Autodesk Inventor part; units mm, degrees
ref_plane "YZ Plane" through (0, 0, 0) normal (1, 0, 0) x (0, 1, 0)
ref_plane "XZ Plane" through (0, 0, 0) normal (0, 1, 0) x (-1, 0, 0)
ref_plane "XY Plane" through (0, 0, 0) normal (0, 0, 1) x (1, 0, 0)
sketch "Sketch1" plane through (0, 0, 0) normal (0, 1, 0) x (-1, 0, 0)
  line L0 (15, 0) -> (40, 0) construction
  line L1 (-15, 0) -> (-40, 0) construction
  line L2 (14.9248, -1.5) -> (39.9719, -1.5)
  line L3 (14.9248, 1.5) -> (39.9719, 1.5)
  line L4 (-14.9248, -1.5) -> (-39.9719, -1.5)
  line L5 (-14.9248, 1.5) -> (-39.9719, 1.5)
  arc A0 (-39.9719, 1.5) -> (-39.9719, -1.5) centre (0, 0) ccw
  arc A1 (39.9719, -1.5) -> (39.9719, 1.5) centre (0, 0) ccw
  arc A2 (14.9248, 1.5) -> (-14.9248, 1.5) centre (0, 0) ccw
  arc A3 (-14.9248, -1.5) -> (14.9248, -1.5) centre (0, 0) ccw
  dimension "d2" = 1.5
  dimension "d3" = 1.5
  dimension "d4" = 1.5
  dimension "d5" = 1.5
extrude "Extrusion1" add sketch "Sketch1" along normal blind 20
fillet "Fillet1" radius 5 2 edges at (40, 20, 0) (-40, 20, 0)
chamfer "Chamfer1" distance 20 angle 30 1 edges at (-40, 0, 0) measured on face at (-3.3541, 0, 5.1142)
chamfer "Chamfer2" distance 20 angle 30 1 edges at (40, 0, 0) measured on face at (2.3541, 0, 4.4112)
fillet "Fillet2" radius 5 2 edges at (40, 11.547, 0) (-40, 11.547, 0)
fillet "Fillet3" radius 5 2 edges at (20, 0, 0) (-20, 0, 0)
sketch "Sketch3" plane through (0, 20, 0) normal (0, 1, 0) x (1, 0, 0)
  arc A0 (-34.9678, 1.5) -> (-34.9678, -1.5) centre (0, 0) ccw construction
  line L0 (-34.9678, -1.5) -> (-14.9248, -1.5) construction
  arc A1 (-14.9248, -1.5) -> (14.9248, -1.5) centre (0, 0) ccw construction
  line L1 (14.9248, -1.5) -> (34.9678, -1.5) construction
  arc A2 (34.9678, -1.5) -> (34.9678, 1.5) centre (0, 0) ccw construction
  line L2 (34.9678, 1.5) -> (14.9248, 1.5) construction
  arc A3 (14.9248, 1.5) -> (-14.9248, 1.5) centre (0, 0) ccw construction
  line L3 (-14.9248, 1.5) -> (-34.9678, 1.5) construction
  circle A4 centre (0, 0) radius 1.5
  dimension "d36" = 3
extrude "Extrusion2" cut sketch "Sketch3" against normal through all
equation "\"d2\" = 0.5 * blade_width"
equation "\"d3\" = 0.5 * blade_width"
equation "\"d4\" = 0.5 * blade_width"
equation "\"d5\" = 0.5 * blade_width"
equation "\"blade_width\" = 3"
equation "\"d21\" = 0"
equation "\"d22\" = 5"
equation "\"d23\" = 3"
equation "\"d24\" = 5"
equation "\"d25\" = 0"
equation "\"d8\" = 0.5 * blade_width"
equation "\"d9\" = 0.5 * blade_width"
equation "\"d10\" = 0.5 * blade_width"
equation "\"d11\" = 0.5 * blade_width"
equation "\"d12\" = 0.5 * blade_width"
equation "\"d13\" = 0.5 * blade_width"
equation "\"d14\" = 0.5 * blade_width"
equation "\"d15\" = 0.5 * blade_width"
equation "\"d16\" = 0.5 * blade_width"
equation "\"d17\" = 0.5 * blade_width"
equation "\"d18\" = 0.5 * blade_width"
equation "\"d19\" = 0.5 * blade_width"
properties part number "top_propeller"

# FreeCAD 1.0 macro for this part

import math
import FreeCAD as App
import Part
import Sketcher
Q = App.Units.Quantity


def edges_at(feature, points):
    """Names of the edges that pass closest to the given points."""
    edges = feature.Shape.Edges
    near = lambda p: min(range(len(edges)), key=lambda i: edges[i].distToShape(Part.Vertex(*p))[0])
    return sorted({f"Edge{near(p) + 1}" for p in points})

doc = App.newDocument("Part")
body = doc.addObject("PartDesign::Body", "Body")

# Sketch on XZ plane
sketch1 = body.newObject("Sketcher::SketchObject", "Sketch")
sketch1.AttachmentSupport = (doc.getObject("XZ_Plane"), [""])
sketch1.MapMode = "FlatFace"
sketch1.addGeometry(Part.ArcOfCircle(Part.Circle(App.Vector(0, 0, 0), App.Vector(0, 0, 1), 14.999989), math.radians(-174.260825), math.radians(-5.739175)), False)
sketch1.addGeometry(Part.LineSegment(App.Vector(-14.9248, -1.5, 0), App.Vector(-39.9719, -1.5, 0)), False)
sketch1.addGeometry(Part.ArcOfCircle(Part.Circle(App.Vector(0, 0, 0), App.Vector(0, 0, 1), 40.000035), math.radians(177.850906), math.radians(182.149094)), False)
sketch1.addGeometry(Part.LineSegment(App.Vector(-39.9719, 1.5, 0), App.Vector(-14.9248, 1.5, 0)), False)
sketch1.addGeometry(Part.ArcOfCircle(Part.Circle(App.Vector(0, 0, 0), App.Vector(0, 0, 1), 14.999989), math.radians(5.739175), math.radians(174.260825)), False)
sketch1.addGeometry(Part.LineSegment(App.Vector(14.9248, 1.5, 0), App.Vector(39.9719, 1.5, 0)), False)
sketch1.addGeometry(Part.ArcOfCircle(Part.Circle(App.Vector(0, 0, 0), App.Vector(0, 0, 1), 40.000035), math.radians(-2.149094), math.radians(2.149094)), False)
sketch1.addGeometry(Part.LineSegment(App.Vector(39.9719, -1.5, 0), App.Vector(14.9248, -1.5, 0)), False)
sketch1.addConstraint(Sketcher.Constraint("Coincident", 0, 1, 1, 1))
sketch1.addConstraint(Sketcher.Constraint("Coincident", 1, 2, 2, 2))
sketch1.addConstraint(Sketcher.Constraint("Coincident", 2, 1, 3, 1))
sketch1.addConstraint(Sketcher.Constraint("Coincident", 3, 2, 4, 2))
sketch1.addConstraint(Sketcher.Constraint("Coincident", 4, 1, 5, 1))
sketch1.addConstraint(Sketcher.Constraint("Coincident", 5, 2, 6, 2))
sketch1.addConstraint(Sketcher.Constraint("Coincident", 6, 1, 7, 1))
sketch1.addConstraint(Sketcher.Constraint("Coincident", 7, 2, 0, 2))
sketch1.addConstraint(Sketcher.Constraint("Horizontal", 1))
sketch1.addConstraint(Sketcher.Constraint("Horizontal", 3))
sketch1.addConstraint(Sketcher.Constraint("Horizontal", 5))
sketch1.addConstraint(Sketcher.Constraint("Horizontal", 7))
sketch1.addConstraint(Sketcher.Constraint("Coincident", 0, 3, -1, 1))
sketch1.addConstraint(Sketcher.Constraint("Coincident", 2, 3, -1, 1))
sketch1.addConstraint(Sketcher.Constraint("Coincident", 4, 3, -1, 1))
sketch1.addConstraint(Sketcher.Constraint("Coincident", 6, 3, -1, 1))
sketch1.addConstraint(Sketcher.Constraint("Equal", 0, 4))
sketch1.addConstraint(Sketcher.Constraint("Equal", 2, 6))
sketch1.addConstraint(Sketcher.Constraint("Horizontal", 3, 2, 4, 1))
sketch1.addConstraint(Sketcher.Constraint("Horizontal", 1, 2, 6, 1))
sketch1.addConstraint(Sketcher.Constraint("Vertical", 1, 2, 2, 1))
sketch1.addConstraint(Sketcher.Constraint("Radius", 0, Q("15 mm")))
sketch1.addConstraint(Sketcher.Constraint("Radius", 2, Q("40 mm")))
sketch1.addConstraint(Sketcher.Constraint("DistanceY", 0, 1, -1, 1, Q("1.5 mm")))
pad1 = body.newObject("PartDesign::Pad", "Pad")
pad1.Profile = sketch1
pad1.Length = 20
pad1.Reversed = True
doc.recompute()

fillet = body.newObject("PartDesign::Fillet", "Fillet")
fillet.Base = (pad1, edges_at(pad1, [(40, 20, 0), (-40, 20, 0)]))
fillet.Radius = 5
doc.recompute()

chamfer = body.newObject("PartDesign::Chamfer", "Chamfer")
chamfer.Base = (fillet, edges_at(fillet, [(-40, 0, 0)]))
chamfer.ChamferType = "Distance and Angle"
chamfer.Size = 20
chamfer.Angle = 30
doc.recompute()

chamfer2 = body.newObject("PartDesign::Chamfer", "Chamfer001")
chamfer2.Base = (chamfer, edges_at(chamfer, [(40, 0, 0)]))
chamfer2.ChamferType = "Distance and Angle"
chamfer2.Size = 20
chamfer2.Angle = 30
doc.recompute()

fillet2 = body.newObject("PartDesign::Fillet", "Fillet001")
fillet2.Base = (chamfer2, edges_at(chamfer2, [(40, 11.547, 0), (-40, 11.547, 0)]))
fillet2.Radius = 5
doc.recompute()

fillet3 = body.newObject("PartDesign::Fillet", "Fillet002")
fillet3.Base = (fillet2, edges_at(fillet2, [(20, 0, 0), (-20, 0, 0)]))
fillet3.Radius = 5

# Sketch on XZ plane
sketch2 = body.newObject("Sketcher::SketchObject", "Sketch001")
sketch2.AttachmentSupport = (doc.getObject("XZ_Plane"), [""])
sketch2.MapMode = "FlatFace"
sketch2.AttachmentOffset = App.Placement(App.Vector(0, 0, -20), App.Rotation())
sketch2.addGeometry(Part.Circle(App.Vector(0, 0, 0), App.Vector(0, 0, 1), 1.5), False)
sketch2.addConstraint(Sketcher.Constraint("Coincident", 0, 3, -1, 1))
sketch2.addConstraint(Sketcher.Constraint("Diameter", 0, Q("3 mm")))
pocket1 = body.newObject("PartDesign::Pocket", "Pocket")
pocket1.Profile = sketch2
pocket1.Type = "ThroughAll"
pocket1.Reversed = True

doc.recompute()
